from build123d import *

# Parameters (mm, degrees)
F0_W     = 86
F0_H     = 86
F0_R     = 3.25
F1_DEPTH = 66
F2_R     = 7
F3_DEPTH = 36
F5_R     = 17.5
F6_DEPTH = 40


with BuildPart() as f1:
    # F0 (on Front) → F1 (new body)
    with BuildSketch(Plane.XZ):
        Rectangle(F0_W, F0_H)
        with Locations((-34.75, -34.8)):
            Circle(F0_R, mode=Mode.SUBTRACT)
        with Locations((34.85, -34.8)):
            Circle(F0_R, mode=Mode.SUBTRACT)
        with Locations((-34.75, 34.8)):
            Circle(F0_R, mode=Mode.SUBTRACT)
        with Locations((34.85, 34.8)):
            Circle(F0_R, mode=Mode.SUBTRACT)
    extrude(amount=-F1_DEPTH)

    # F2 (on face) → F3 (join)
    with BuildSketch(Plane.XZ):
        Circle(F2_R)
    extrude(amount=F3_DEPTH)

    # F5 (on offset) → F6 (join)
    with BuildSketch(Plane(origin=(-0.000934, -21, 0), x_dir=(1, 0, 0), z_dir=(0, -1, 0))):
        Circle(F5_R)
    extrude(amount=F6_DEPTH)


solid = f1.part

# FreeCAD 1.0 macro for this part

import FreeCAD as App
import Part
import Sketcher
from FreeCAD import Vector

doc = App.newDocument("Part")
body = doc.addObject("PartDesign::Body", "Body")

# Sketch on XZ plane
sketch1 = body.newObject("Sketcher::SketchObject", "Sketch")
sketch1.AttachmentSupport = (doc.getObject("XZ_Plane"), [""])
sketch1.MapMode = "FlatFace"
sketch1.addGeometry(Part.LineSegment(Vector(-43, 43, 0), Vector(-43, -43, 0)), False)
sketch1.addGeometry(Part.LineSegment(Vector(-43, -43, 0), Vector(43, -43, 0)), False)
sketch1.addGeometry(Part.LineSegment(Vector(43, -43, 0), Vector(43, 43, 0)), False)
sketch1.addGeometry(Part.LineSegment(Vector(43, 43, 0), Vector(-43, 43, 0)), False)
sketch1.addGeometry(Part.Circle(Vector(-34.8, -34.8, 0), Vector(0, 0, 1), 3.2), False)
sketch1.addGeometry(Part.Circle(Vector(34.9, -34.8, 0), Vector(0, 0, 1), 3.2), False)
sketch1.addGeometry(Part.Circle(Vector(-34.8, 34.8, 0), Vector(0, 0, 1), 3.2), False)
sketch1.addGeometry(Part.Circle(Vector(34.9, 34.8, 0), Vector(0, 0, 1), 3.2), False)
sketch1.addConstraint(Sketcher.Constraint("Coincident", 0, 2, 1, 1))
sketch1.addConstraint(Sketcher.Constraint("Coincident", 1, 2, 2, 1))
sketch1.addConstraint(Sketcher.Constraint("Coincident", 2, 2, 3, 1))
sketch1.addConstraint(Sketcher.Constraint("Coincident", 3, 2, 0, 1))
sketch1.addConstraint(Sketcher.Constraint("Vertical", 0))
sketch1.addConstraint(Sketcher.Constraint("Horizontal", 1))
sketch1.addConstraint(Sketcher.Constraint("Vertical", 2))
sketch1.addConstraint(Sketcher.Constraint("Horizontal", 3))
sketch1.addConstraint(Sketcher.Constraint("Equal", 4, 5))
sketch1.addConstraint(Sketcher.Constraint("Equal", 5, 6))
sketch1.addConstraint(Sketcher.Constraint("Equal", 6, 7))
sketch1.addConstraint(Sketcher.Constraint("Symmetric", 0, 2, 2, 2, -1, 1))
sketch1.addConstraint(Sketcher.Constraint("Symmetric", 4, 3, 6, 3, -1))
sketch1.addConstraint(Sketcher.Constraint("Symmetric", 5, 3, 7, 3, -1))
sketch1.addConstraint(Sketcher.Constraint("Horizontal", 4, 3, 5, 3))
sketch1.addConstraint(Sketcher.Constraint("Equal", 3, 0))
sketch1.addConstraint(Sketcher.Constraint("Diameter", 4, 6.5))
sketch1.addConstraint(Sketcher.Constraint("DistanceX", 1, 1, 1, 2, 86.0))
sketch1.addConstraint(Sketcher.Constraint("DistanceY", 4, 3, -1, 1, 34.8))
sketch1.addConstraint(Sketcher.Constraint("DistanceX", 4, 3, 5, 3, 69.6))
sketch1.addConstraint(Sketcher.Constraint("DistanceX", 4, 3, -1, 1, 34.75))
pad1 = body.newObject("PartDesign::Pad", "Pad")
pad1.Profile = sketch1
pad1.Length = 66
pad1.Reversed = True

# Sketch on XZ plane
sketch2 = body.newObject("Sketcher::SketchObject", "Sketch001")
sketch2.AttachmentSupport = (doc.getObject("XZ_Plane"), [""])
sketch2.MapMode = "FlatFace"
sketch2.addGeometry(Part.Circle(Vector(0, 0, 0), Vector(0, 0, 1), 7), False)
sketch2.addConstraint(Sketcher.Constraint("Coincident", 0, 3, -1, 1))
sketch2.addConstraint(Sketcher.Constraint("Diameter", 0, 14.0))
pad2 = body.newObject("PartDesign::Pad", "Pad001")
pad2.Profile = sketch2
pad2.Length = 36

# Sketch on XZ plane
sketch3 = body.newObject("Sketcher::SketchObject", "Sketch002")
sketch3.AttachmentSupport = (doc.getObject("XZ_Plane"), [""])
sketch3.MapMode = "FlatFace"
sketch3.AttachmentOffset = App.Placement(Vector(0, 0, 21), App.Rotation())
sketch3.addGeometry(Part.Circle(Vector(0, 0, 0), Vector(0, 0, 1), 18), False)
sketch3.addConstraint(Sketcher.Constraint("PointOnObject", 0, 3, -1))
sketch3.addConstraint(Sketcher.Constraint("Diameter", 0, 35.0))
sketch3.addConstraint(Sketcher.Constraint("DistanceX", 0, 3, -1, 1, 0.000934))
pad3 = body.newObject("PartDesign::Pad", "Pad002")
pad3.Profile = sketch3
pad3.Length = 40

doc.recompute()
